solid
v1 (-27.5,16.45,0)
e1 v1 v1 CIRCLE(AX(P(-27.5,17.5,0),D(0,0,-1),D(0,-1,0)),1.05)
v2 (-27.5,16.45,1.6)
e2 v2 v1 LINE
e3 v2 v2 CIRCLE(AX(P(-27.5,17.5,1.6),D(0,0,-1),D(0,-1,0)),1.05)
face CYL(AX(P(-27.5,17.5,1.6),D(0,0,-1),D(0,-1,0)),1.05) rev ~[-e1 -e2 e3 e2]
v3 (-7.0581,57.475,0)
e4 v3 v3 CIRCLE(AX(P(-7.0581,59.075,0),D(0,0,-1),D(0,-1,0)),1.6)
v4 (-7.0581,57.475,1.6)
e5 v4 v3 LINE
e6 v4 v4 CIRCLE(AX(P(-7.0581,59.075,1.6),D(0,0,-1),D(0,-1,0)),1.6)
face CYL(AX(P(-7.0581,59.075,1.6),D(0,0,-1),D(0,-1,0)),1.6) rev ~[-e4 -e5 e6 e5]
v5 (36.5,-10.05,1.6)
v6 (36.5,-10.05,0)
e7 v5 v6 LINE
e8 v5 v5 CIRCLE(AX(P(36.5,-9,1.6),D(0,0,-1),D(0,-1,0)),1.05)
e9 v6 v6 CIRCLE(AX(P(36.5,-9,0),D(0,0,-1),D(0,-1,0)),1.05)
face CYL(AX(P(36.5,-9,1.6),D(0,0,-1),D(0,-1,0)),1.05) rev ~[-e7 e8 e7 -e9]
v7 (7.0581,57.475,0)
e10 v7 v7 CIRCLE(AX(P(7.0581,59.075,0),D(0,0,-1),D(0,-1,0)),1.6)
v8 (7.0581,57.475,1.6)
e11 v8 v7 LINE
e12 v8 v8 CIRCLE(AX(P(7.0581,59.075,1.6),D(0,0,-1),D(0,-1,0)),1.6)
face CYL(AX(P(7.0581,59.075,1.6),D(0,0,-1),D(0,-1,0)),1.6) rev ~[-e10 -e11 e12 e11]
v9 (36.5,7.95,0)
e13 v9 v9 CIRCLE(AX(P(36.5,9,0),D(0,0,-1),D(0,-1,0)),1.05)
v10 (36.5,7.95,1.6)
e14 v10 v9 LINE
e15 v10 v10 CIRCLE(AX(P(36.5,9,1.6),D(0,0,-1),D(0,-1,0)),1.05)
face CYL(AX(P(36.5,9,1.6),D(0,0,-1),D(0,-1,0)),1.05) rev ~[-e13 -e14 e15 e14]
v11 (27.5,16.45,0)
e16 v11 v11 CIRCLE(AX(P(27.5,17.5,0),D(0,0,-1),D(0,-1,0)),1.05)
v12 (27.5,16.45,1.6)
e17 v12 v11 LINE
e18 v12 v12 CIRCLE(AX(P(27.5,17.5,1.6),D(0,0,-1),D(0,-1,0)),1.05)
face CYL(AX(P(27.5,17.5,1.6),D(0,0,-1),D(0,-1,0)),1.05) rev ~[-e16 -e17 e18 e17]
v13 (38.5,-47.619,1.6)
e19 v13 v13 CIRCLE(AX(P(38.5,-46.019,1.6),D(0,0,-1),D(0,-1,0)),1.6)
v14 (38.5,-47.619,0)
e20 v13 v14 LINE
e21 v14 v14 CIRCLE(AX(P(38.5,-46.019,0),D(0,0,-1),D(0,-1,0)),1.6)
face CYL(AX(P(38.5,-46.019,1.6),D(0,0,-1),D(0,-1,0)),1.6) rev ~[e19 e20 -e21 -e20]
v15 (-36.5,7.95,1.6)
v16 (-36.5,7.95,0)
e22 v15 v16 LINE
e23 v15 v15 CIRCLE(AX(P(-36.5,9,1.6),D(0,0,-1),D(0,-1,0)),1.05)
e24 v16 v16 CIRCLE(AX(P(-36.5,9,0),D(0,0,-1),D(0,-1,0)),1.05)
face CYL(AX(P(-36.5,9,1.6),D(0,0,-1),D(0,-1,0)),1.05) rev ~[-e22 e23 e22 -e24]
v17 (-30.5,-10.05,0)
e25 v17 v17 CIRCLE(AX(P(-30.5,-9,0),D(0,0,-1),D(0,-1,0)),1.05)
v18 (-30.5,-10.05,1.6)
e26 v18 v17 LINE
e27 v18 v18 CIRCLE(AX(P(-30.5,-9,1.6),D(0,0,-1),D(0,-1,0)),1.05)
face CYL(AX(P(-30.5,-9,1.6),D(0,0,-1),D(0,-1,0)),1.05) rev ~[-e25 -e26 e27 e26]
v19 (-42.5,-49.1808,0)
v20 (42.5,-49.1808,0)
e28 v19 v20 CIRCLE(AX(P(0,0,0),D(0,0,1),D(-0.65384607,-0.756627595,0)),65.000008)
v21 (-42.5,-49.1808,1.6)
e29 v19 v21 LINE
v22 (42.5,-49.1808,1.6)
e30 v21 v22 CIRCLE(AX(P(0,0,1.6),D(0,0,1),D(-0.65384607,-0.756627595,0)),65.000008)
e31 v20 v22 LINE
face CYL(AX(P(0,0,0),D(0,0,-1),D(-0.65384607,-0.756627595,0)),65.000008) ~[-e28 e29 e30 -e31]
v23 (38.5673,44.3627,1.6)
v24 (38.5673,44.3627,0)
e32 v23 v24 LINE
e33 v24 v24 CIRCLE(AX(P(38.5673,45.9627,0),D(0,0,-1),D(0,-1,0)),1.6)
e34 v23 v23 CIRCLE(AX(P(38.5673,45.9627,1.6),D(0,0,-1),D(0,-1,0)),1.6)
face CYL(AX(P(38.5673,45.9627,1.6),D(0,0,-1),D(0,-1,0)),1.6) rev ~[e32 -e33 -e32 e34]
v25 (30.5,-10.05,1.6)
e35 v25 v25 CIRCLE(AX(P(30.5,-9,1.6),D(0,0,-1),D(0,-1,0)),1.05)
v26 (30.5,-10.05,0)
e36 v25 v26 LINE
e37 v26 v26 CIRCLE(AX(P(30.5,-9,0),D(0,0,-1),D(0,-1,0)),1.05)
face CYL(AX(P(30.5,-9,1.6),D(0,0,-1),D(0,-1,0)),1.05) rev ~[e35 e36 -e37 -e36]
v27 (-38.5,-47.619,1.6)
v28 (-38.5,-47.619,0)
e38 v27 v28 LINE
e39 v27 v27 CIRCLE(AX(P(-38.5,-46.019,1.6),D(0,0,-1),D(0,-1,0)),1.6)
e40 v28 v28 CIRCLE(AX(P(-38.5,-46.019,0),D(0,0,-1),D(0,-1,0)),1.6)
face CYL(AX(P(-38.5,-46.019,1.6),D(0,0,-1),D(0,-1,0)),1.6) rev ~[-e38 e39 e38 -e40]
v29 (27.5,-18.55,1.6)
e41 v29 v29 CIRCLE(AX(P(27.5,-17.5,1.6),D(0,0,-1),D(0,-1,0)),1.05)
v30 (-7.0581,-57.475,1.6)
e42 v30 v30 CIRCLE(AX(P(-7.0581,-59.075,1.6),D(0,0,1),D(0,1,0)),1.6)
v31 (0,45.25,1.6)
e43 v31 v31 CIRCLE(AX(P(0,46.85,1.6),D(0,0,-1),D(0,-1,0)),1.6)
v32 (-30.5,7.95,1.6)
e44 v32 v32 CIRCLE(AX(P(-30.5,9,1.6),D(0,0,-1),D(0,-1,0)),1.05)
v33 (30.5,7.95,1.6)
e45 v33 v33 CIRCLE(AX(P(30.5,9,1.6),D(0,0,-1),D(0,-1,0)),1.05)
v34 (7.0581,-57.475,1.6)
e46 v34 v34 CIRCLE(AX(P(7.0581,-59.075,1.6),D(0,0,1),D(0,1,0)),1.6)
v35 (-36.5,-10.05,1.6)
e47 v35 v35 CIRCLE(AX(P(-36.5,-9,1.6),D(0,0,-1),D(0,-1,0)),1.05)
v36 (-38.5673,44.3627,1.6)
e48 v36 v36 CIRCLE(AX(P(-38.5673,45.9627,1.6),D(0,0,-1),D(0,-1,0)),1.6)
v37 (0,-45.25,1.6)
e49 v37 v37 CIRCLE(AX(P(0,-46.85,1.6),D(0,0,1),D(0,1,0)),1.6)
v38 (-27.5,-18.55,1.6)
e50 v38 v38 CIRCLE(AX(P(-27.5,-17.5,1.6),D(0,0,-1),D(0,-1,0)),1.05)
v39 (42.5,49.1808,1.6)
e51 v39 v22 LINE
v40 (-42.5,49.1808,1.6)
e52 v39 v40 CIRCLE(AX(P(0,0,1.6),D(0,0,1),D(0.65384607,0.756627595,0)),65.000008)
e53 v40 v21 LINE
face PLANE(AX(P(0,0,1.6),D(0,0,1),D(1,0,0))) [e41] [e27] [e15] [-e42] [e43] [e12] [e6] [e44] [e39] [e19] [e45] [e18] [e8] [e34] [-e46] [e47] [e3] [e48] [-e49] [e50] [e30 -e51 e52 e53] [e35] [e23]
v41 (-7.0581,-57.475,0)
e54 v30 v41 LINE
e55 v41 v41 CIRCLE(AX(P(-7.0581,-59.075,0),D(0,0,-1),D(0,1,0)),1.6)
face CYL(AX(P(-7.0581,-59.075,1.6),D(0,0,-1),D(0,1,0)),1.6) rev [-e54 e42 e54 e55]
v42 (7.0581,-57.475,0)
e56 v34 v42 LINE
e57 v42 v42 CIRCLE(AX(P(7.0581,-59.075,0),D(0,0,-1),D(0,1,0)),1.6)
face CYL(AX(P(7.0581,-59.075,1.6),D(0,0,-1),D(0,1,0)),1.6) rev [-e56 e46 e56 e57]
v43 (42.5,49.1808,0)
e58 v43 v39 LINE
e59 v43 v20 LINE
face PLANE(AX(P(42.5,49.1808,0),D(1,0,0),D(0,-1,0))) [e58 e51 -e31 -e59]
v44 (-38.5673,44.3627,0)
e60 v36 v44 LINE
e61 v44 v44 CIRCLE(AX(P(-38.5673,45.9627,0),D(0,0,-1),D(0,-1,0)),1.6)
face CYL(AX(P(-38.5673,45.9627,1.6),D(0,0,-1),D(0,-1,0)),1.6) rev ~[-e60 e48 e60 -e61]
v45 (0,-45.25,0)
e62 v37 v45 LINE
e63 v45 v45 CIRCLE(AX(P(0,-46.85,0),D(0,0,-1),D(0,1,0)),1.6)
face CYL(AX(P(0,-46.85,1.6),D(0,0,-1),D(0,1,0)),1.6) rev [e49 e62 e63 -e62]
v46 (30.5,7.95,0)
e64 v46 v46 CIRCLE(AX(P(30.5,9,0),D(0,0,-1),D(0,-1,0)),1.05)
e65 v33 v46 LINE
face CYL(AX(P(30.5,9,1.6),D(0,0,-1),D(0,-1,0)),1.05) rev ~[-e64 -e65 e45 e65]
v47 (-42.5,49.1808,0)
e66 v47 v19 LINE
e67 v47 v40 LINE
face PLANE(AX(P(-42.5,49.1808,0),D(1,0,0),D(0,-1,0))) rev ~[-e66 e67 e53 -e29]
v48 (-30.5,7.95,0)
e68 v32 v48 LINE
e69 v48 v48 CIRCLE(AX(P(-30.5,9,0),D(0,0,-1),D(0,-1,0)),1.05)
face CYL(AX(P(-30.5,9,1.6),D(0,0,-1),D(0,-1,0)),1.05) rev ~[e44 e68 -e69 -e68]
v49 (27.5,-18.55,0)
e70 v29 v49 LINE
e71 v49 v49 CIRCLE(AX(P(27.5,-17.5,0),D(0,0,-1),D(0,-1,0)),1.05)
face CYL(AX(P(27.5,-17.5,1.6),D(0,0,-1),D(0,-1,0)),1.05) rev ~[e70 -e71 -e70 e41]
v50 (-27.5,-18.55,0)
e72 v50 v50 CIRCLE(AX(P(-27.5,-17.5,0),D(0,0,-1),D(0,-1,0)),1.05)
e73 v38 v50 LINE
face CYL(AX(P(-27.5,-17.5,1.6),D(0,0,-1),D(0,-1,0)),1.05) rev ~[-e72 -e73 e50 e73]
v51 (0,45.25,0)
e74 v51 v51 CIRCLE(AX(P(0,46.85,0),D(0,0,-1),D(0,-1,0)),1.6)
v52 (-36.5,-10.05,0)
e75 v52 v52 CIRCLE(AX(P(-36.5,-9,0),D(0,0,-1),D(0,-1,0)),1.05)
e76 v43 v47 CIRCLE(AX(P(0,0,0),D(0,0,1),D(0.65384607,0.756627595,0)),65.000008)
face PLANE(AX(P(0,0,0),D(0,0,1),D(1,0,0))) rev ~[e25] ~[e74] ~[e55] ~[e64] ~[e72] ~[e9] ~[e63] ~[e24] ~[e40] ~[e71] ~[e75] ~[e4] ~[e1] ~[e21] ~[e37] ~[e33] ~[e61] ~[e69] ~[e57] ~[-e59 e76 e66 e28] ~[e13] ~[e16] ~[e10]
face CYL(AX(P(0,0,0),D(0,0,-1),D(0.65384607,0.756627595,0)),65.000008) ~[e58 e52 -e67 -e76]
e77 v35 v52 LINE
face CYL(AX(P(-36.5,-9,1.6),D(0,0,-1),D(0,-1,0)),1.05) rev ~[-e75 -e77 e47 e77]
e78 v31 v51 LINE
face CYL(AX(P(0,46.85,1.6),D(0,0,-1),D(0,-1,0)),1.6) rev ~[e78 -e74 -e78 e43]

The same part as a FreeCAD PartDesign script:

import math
import FreeCAD as App
import Part
import Sketcher
from FreeCAD import Vector

doc = App.newDocument("Part")
body = doc.addObject("PartDesign::Body", "Body")

sketch1 = body.newObject("Sketcher::SketchObject", "Sketch")
sketch1.AttachmentSupport = (doc.getObject("XY_Plane"), [""])
sketch1.MapMode = "FlatFace"
sketch1.addGeometry([
    Part.LineSegment(Vector(42.5, -49.1808, 0), Vector(42.5, 49.1808, 0)),
    Part.ArcOfCircle(Part.Circle(Vector(0, 0, 0), Vector(0, 0, 1), 65.000008), math.radians(49.167789), math.radians(130.832211)),
    Part.LineSegment(Vector(-42.5, 49.1808, 0), Vector(-42.5, -49.1808, 0)),
    Part.ArcOfCircle(Part.Circle(Vector(0, 0, 0), Vector(0, 0, 1), 65.000008), math.radians(-130.832211), math.radians(-49.167789)),
], False)
sketch1.addConstraint([
    Sketcher.Constraint("Coincident", 0, 2, 1, 1),
    Sketcher.Constraint("Coincident", 1, 2, 2, 1),
    Sketcher.Constraint("Coincident", 2, 2, 3, 1),
    Sketcher.Constraint("Coincident", 3, 2, 0, 1),
    Sketcher.Constraint("Vertical", 0),
    Sketcher.Constraint("Vertical", 2),
    Sketcher.Constraint("Coincident", 1, 3, -1, 1),
    Sketcher.Constraint("Coincident", 3, 3, -1, 1),
    Sketcher.Constraint("Equal", 1, 3),
    Sketcher.Constraint("Horizontal", 0, 2, 1, 2),
    Sketcher.Constraint("Radius", 1, 65.0),
    Sketcher.Constraint("DistanceX", 1, 2, 0, 2, 85.0),
])
pad1 = body.newObject("PartDesign::Pad", "Pad")
pad1.Profile = sketch1
pad1.Length = 1.6

sketch2 = body.newObject("Sketcher::SketchObject", "Sketch001")
sketch2.AttachmentSupport = (doc.getObject("XY_Plane"), [""])
sketch2.MapMode = "FlatFace"
sketch2.AttachmentOffset = App.Placement(Vector(0, 0, 1.6), App.Rotation())
sketch2.addGeometry([
    Part.Circle(Vector(-36.5, 9, 0), Vector(0, 0, 1), 1.05),
    Part.Circle(Vector(-30.5, 9, 0), Vector(0, 0, 1), 1.05),
    Part.Circle(Vector(30.5, 9, 0), Vector(0, 0, 1), 1.05),
    Part.Circle(Vector(36.5, 9, 0), Vector(0, 0, 1), 1.05),
    Part.Circle(Vector(-36.5, -9, 0), Vector(0, 0, 1), 1.05),
    Part.Circle(Vector(-30.5, -9, 0), Vector(0, 0, 1), 1.05),
    Part.Circle(Vector(30.5, -9, 0), Vector(0, 0, 1), 1.05),
    Part.Circle(Vector(36.5, -9, 0), Vector(0, 0, 1), 1.05),
    Part.Circle(Vector(-27.5, -17.5, 0), Vector(0, 0, 1), 1.05),
    Part.Circle(Vector(-27.5, 17.5, 0), Vector(0, 0, 1), 1.05),
    Part.Circle(Vector(27.5, -17.5, 0), Vector(0, 0, 1), 1.05),
    Part.Circle(Vector(27.5, 17.5, 0), Vector(0, 0, 1), 1.05),
], False)
sketch2.addConstraint([
    Sketcher.Constraint("Equal", 0, 1),
    Sketcher.Constraint("Equal", 1, 2),
    Sketcher.Constraint("Equal", 2, 3),
    Sketcher.Constraint("Equal", 3, 4),
    Sketcher.Constraint("Equal", 4, 5),
    Sketcher.Constraint("Equal", 5, 6),
    Sketcher.Constraint("Equal", 6, 7),
    Sketcher.Constraint("Equal", 7, 8),
    Sketcher.Constraint("Equal", 8, 9),
    Sketcher.Constraint("Equal", 9, 10),
    Sketcher.Constraint("Equal", 10, 11),
    Sketcher.Constraint("Symmetric", 3, 3, 4, 3, -1, 1),
    Sketcher.Constraint("Symmetric", 2, 3, 5, 3, -1, 1),
    Sketcher.Constraint("Symmetric", 1, 3, 6, 3, -1, 1),
    Sketcher.Constraint("Symmetric", 0, 3, 7, 3, -1, 1),
    Sketcher.Constraint("Symmetric", 9, 3, 10, 3, -1, 1),
    Sketcher.Constraint("Symmetric", 8, 3, 11, 3, -1, 1),
    Sketcher.Constraint("Symmetric", 1, 3, 2, 3, -2),
    Sketcher.Constraint("Symmetric", 0, 3, 3, 3, -2),
    Sketcher.Constraint("Symmetric", 8, 3, 10, 3, -2),
    Sketcher.Constraint("Horizontal", 0, 3, 1, 3),
    Sketcher.Constraint("Diameter", 0, 2.1),
    Sketcher.Constraint("DistanceY", -1, 1, 0, 3, 9.0),
    Sketcher.Constraint("DistanceX", 0, 3, 1, 3, 6.0),
    Sketcher.Constraint("DistanceX", 1, 3, 2, 3, 61.0),
    Sketcher.Constraint("DistanceX", 5, 3, 8, 3, 3.0),
    Sketcher.Constraint("DistanceY", 8, 3, 9, 3, 35.0),
])
doc.recompute()
hole = body.newObject("PartDesign::Hole", "Hole")
hole.Profile = sketch2
hole.ThreadType = "None"
hole.Diameter = 2.1
hole.DepthType = "ThroughAll"

sketch3 = body.newObject("Sketcher::SketchObject", "Sketch002")
sketch3.AttachmentSupport = (doc.getObject("XY_Plane"), [""])
sketch3.MapMode = "FlatFace"
sketch3.AttachmentOffset = App.Placement(Vector(0, 0, 1.6), App.Rotation())
sketch3.addGeometry([
    Part.Circle(Vector(-7.0581, 59.075, 0), Vector(0, 0, 1), 1.6),
    Part.Circle(Vector(7.0581, 59.075, 0), Vector(0, 0, 1), 1.6),
    Part.Circle(Vector(0, 46.85, 0), Vector(0, 0, 1), 1.6),
], False)
sketch3.addConstraint([
    Sketcher.Constraint("Equal", 0, 1),
    Sketcher.Constraint("Equal", 1, 2),
    Sketcher.Constraint("Symmetric", 0, 3, 1, 3, -2),
    Sketcher.Constraint("PointOnObject", 2, 3, -2),
    Sketcher.Constraint("Diameter", 0, 3.2),
    Sketcher.Constraint("DistanceY", -1, 1, 2, 3, 46.85),
    Sketcher.Constraint("DistanceX", 0, 3, -1, 1, 7.058),
    Sketcher.Constraint("DistanceY", -1, 1, 0, 3, 59.075),
])
doc.recompute()
hole2 = body.newObject("PartDesign::Hole", "Hole001")
hole2.Profile = sketch3
hole2.ThreadType = "None"
hole2.Diameter = 3.2
hole2.DepthType = "ThroughAll"

sketch4 = body.newObject("Sketcher::SketchObject", "Sketch003")
sketch4.AttachmentSupport = (doc.getObject("XY_Plane"), [""])
sketch4.MapMode = "FlatFace"
sketch4.AttachmentOffset = App.Placement(Vector(0, 0, 1.6), App.Rotation())
sketch4.addGeometry([
    Part.Circle(Vector(38.5, -46.019, 0), Vector(0, 0, 1), 1.6),
    Part.Circle(Vector(-38.5, -46.019, 0), Vector(0, 0, 1), 1.6),
    Part.Circle(Vector(38.5673, 45.9627, 0), Vector(0, 0, 1), 1.6),
    Part.Circle(Vector(-38.5673, 45.9627, 0), Vector(0, 0, 1), 1.6),
], False)
sketch4.addConstraint([
    Sketcher.Constraint("Equal", 0, 1),
    Sketcher.Constraint("Equal", 1, 2),
    Sketcher.Constraint("Equal", 2, 3),
    Sketcher.Constraint("Symmetric", 0, 3, 1, 3, -2),
    Sketcher.Constraint("Symmetric", 2, 3, 3, 3, -2),
    Sketcher.Constraint("Diameter", 0, 3.2),
    Sketcher.Constraint("DistanceX", 1, 3, 0, 3, 77.0),
    Sketcher.Constraint("DistanceY", 0, 3, -1, 1, 46.019),
    Sketcher.Constraint("DistanceX", -1, 1, 2, 3, 38.5673),
    Sketcher.Constraint("DistanceY", -1, 1, 2, 3, 45.9627),
])
doc.recompute()
hole3 = body.newObject("PartDesign::Hole", "Hole002")
hole3.Profile = sketch4
hole3.ThreadType = "None"
hole3.Diameter = 3.2
hole3.DepthType = "ThroughAll"
doc.recompute()

mirrored = body.newObject("PartDesign::Mirrored", "Mirrored")
mirrored.Originals = [hole2]
mirrored.MirrorPlane = (doc.getObject("XZ_Plane"), [""])
body.Tip = mirrored

doc.recompute()
